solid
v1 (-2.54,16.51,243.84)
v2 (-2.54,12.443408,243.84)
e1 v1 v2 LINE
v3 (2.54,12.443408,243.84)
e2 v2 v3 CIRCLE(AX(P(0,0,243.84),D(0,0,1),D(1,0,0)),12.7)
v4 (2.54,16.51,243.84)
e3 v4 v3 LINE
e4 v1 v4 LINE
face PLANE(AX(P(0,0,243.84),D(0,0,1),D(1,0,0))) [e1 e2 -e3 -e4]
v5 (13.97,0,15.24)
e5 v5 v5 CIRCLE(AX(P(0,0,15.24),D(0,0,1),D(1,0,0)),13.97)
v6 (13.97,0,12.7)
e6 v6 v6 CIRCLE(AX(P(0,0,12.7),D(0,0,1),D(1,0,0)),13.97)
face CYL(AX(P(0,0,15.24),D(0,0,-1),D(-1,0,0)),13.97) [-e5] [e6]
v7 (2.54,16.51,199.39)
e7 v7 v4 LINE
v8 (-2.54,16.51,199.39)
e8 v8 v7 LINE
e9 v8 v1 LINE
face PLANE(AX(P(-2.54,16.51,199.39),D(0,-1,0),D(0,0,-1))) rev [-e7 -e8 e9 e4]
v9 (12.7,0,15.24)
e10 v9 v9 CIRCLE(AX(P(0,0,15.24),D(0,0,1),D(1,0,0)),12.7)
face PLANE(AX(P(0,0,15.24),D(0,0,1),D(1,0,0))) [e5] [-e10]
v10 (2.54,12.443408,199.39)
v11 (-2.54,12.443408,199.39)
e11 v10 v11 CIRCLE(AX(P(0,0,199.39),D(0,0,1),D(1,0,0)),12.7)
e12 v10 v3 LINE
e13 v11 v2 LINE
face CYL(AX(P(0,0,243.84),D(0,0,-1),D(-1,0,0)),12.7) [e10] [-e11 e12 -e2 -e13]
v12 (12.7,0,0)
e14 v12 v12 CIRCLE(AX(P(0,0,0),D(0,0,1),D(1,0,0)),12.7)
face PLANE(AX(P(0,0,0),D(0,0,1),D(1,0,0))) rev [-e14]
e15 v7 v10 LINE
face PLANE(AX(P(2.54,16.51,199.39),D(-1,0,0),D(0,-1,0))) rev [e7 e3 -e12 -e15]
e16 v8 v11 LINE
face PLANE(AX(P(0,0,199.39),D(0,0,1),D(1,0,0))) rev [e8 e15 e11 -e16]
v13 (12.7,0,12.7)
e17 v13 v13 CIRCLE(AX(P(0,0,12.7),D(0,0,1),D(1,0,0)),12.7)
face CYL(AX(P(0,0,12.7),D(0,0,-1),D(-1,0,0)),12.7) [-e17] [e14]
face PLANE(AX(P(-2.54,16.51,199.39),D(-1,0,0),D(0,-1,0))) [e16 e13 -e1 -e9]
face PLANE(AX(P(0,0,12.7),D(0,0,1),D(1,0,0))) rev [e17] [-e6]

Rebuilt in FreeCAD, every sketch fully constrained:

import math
import FreeCAD as App
import Part
import Sketcher
from FreeCAD import Vector
Q = App.Units.Quantity

doc = App.newDocument("Part")
body = doc.addObject("PartDesign::Body", "Body")

sketch1 = body.newObject("Sketcher::SketchObject", "Sketch")
sketch1.AttachmentSupport = (doc.getObject("XY_Plane"), [""])
sketch1.MapMode = "FlatFace"
sketch1.addGeometry(Part.Circle(Vector(0, 0, 0), Vector(0, 0, 1), 13), False)
sketch1.addConstraint(Sketcher.Constraint("Coincident", 0, 3, -1, 1))
sketch1.addConstraint(Sketcher.Constraint("Diameter", 0, Q("1 in")))
pad1 = body.newObject("PartDesign::Pad", "Pad")
pad1.Profile = sketch1
pad1.Length = Q("0.5 in")

sketch2 = body.newObject("Sketcher::SketchObject", "Sketch001")
sketch2.AttachmentSupport = (doc.getObject("XY_Plane"), [""])
sketch2.MapMode = "FlatFace"
sketch2.AttachmentOffset = App.Placement(Vector(0, 0, 0.5 * 25.4), App.Rotation())
sketch2.addGeometry(Part.Circle(Vector(0, 0, 0), Vector(0, 0, 1), 14), False)
sketch2.addConstraint(Sketcher.Constraint("Coincident", 0, 3, -1, 1))
sketch2.addConstraint(Sketcher.Constraint("Diameter", 0, Q("1.1 in")))
pad2 = body.newObject("PartDesign::Pad", "Pad001")
pad2.Profile = sketch2
pad2.Length = Q("0.1 in")

sketch3 = body.newObject("Sketcher::SketchObject", "Sketch002")
sketch3.AttachmentSupport = (doc.getObject("XY_Plane"), [""])
sketch3.MapMode = "FlatFace"
sketch3.AttachmentOffset = App.Placement(Vector(0, 0, 0.6 * 25.4), App.Rotation())
sketch3.addGeometry(Part.Circle(Vector(0, 0, 0), Vector(0, 0, 1), 13), False)
sketch3.addConstraint(Sketcher.Constraint("Coincident", 0, 3, -1, 1))
sketch3.addConstraint(Sketcher.Constraint("Diameter", 0, Q("1 in")))
pad3 = body.newObject("PartDesign::Pad", "Pad002")
pad3.Profile = sketch3
pad3.Length = Q("9 in")

sketch4 = body.newObject("Sketcher::SketchObject", "Sketch003")
sketch4.AttachmentSupport = (doc.getObject("XY_Plane"), [""])
sketch4.MapMode = "FlatFace"
sketch4.AttachmentOffset = App.Placement(Vector(0, 0, 7.85 * 25.4), App.Rotation())
sketch4.addGeometry(Part.LineSegment(Vector(2.5, 16.5, 0), Vector(-2.5, 16.5, 0)), False)
sketch4.addGeometry(Part.LineSegment(Vector(-2.5, 16.5, 0), Vector(-2.5, 12.4, 0)), False)
sketch4.addGeometry(Part.ArcOfCircle(Part.Circle(Vector(0, 0, 0), Vector(0, 0, 1), 12.7), math.radians(78), math.radians(102)), False)
sketch4.addGeometry(Part.LineSegment(Vector(2.5, 12.4, 0), Vector(2.5, 16.5, 0)), False)
sketch4.addConstraint(Sketcher.Constraint("Coincident", 0, 2, 1, 1))
sketch4.addConstraint(Sketcher.Constraint("Coincident", 1, 2, 2, 2))
sketch4.addConstraint(Sketcher.Constraint("Coincident", 2, 1, 3, 1))
sketch4.addConstraint(Sketcher.Constraint("Coincident", 3, 2, 0, 1))
sketch4.addConstraint(Sketcher.Constraint("Horizontal", 0))
sketch4.addConstraint(Sketcher.Constraint("Vertical", 1))
sketch4.addConstraint(Sketcher.Constraint("Vertical", 3))
sketch4.addConstraint(Sketcher.Constraint("Coincident", 2, 3, -1, 1))
sketch4.addConstraint(Sketcher.Constraint("Horizontal", 1, 2, 2, 1))
sketch4.addConstraint(Sketcher.Constraint("Radius", 2, Q("0.5 in")))
sketch4.addConstraint(Sketcher.Constraint("DistanceX", 0, 2, 0, 1, Q("0.2 in")))
sketch4.addConstraint(Sketcher.Constraint("DistanceY", -1, 1, 0, 2, Q("0.65 in")))
pad4 = body.newObject("PartDesign::Pad", "Pad003")
pad4.Profile = sketch4
pad4.Length = Q("1.75 in")

doc.recompute()
